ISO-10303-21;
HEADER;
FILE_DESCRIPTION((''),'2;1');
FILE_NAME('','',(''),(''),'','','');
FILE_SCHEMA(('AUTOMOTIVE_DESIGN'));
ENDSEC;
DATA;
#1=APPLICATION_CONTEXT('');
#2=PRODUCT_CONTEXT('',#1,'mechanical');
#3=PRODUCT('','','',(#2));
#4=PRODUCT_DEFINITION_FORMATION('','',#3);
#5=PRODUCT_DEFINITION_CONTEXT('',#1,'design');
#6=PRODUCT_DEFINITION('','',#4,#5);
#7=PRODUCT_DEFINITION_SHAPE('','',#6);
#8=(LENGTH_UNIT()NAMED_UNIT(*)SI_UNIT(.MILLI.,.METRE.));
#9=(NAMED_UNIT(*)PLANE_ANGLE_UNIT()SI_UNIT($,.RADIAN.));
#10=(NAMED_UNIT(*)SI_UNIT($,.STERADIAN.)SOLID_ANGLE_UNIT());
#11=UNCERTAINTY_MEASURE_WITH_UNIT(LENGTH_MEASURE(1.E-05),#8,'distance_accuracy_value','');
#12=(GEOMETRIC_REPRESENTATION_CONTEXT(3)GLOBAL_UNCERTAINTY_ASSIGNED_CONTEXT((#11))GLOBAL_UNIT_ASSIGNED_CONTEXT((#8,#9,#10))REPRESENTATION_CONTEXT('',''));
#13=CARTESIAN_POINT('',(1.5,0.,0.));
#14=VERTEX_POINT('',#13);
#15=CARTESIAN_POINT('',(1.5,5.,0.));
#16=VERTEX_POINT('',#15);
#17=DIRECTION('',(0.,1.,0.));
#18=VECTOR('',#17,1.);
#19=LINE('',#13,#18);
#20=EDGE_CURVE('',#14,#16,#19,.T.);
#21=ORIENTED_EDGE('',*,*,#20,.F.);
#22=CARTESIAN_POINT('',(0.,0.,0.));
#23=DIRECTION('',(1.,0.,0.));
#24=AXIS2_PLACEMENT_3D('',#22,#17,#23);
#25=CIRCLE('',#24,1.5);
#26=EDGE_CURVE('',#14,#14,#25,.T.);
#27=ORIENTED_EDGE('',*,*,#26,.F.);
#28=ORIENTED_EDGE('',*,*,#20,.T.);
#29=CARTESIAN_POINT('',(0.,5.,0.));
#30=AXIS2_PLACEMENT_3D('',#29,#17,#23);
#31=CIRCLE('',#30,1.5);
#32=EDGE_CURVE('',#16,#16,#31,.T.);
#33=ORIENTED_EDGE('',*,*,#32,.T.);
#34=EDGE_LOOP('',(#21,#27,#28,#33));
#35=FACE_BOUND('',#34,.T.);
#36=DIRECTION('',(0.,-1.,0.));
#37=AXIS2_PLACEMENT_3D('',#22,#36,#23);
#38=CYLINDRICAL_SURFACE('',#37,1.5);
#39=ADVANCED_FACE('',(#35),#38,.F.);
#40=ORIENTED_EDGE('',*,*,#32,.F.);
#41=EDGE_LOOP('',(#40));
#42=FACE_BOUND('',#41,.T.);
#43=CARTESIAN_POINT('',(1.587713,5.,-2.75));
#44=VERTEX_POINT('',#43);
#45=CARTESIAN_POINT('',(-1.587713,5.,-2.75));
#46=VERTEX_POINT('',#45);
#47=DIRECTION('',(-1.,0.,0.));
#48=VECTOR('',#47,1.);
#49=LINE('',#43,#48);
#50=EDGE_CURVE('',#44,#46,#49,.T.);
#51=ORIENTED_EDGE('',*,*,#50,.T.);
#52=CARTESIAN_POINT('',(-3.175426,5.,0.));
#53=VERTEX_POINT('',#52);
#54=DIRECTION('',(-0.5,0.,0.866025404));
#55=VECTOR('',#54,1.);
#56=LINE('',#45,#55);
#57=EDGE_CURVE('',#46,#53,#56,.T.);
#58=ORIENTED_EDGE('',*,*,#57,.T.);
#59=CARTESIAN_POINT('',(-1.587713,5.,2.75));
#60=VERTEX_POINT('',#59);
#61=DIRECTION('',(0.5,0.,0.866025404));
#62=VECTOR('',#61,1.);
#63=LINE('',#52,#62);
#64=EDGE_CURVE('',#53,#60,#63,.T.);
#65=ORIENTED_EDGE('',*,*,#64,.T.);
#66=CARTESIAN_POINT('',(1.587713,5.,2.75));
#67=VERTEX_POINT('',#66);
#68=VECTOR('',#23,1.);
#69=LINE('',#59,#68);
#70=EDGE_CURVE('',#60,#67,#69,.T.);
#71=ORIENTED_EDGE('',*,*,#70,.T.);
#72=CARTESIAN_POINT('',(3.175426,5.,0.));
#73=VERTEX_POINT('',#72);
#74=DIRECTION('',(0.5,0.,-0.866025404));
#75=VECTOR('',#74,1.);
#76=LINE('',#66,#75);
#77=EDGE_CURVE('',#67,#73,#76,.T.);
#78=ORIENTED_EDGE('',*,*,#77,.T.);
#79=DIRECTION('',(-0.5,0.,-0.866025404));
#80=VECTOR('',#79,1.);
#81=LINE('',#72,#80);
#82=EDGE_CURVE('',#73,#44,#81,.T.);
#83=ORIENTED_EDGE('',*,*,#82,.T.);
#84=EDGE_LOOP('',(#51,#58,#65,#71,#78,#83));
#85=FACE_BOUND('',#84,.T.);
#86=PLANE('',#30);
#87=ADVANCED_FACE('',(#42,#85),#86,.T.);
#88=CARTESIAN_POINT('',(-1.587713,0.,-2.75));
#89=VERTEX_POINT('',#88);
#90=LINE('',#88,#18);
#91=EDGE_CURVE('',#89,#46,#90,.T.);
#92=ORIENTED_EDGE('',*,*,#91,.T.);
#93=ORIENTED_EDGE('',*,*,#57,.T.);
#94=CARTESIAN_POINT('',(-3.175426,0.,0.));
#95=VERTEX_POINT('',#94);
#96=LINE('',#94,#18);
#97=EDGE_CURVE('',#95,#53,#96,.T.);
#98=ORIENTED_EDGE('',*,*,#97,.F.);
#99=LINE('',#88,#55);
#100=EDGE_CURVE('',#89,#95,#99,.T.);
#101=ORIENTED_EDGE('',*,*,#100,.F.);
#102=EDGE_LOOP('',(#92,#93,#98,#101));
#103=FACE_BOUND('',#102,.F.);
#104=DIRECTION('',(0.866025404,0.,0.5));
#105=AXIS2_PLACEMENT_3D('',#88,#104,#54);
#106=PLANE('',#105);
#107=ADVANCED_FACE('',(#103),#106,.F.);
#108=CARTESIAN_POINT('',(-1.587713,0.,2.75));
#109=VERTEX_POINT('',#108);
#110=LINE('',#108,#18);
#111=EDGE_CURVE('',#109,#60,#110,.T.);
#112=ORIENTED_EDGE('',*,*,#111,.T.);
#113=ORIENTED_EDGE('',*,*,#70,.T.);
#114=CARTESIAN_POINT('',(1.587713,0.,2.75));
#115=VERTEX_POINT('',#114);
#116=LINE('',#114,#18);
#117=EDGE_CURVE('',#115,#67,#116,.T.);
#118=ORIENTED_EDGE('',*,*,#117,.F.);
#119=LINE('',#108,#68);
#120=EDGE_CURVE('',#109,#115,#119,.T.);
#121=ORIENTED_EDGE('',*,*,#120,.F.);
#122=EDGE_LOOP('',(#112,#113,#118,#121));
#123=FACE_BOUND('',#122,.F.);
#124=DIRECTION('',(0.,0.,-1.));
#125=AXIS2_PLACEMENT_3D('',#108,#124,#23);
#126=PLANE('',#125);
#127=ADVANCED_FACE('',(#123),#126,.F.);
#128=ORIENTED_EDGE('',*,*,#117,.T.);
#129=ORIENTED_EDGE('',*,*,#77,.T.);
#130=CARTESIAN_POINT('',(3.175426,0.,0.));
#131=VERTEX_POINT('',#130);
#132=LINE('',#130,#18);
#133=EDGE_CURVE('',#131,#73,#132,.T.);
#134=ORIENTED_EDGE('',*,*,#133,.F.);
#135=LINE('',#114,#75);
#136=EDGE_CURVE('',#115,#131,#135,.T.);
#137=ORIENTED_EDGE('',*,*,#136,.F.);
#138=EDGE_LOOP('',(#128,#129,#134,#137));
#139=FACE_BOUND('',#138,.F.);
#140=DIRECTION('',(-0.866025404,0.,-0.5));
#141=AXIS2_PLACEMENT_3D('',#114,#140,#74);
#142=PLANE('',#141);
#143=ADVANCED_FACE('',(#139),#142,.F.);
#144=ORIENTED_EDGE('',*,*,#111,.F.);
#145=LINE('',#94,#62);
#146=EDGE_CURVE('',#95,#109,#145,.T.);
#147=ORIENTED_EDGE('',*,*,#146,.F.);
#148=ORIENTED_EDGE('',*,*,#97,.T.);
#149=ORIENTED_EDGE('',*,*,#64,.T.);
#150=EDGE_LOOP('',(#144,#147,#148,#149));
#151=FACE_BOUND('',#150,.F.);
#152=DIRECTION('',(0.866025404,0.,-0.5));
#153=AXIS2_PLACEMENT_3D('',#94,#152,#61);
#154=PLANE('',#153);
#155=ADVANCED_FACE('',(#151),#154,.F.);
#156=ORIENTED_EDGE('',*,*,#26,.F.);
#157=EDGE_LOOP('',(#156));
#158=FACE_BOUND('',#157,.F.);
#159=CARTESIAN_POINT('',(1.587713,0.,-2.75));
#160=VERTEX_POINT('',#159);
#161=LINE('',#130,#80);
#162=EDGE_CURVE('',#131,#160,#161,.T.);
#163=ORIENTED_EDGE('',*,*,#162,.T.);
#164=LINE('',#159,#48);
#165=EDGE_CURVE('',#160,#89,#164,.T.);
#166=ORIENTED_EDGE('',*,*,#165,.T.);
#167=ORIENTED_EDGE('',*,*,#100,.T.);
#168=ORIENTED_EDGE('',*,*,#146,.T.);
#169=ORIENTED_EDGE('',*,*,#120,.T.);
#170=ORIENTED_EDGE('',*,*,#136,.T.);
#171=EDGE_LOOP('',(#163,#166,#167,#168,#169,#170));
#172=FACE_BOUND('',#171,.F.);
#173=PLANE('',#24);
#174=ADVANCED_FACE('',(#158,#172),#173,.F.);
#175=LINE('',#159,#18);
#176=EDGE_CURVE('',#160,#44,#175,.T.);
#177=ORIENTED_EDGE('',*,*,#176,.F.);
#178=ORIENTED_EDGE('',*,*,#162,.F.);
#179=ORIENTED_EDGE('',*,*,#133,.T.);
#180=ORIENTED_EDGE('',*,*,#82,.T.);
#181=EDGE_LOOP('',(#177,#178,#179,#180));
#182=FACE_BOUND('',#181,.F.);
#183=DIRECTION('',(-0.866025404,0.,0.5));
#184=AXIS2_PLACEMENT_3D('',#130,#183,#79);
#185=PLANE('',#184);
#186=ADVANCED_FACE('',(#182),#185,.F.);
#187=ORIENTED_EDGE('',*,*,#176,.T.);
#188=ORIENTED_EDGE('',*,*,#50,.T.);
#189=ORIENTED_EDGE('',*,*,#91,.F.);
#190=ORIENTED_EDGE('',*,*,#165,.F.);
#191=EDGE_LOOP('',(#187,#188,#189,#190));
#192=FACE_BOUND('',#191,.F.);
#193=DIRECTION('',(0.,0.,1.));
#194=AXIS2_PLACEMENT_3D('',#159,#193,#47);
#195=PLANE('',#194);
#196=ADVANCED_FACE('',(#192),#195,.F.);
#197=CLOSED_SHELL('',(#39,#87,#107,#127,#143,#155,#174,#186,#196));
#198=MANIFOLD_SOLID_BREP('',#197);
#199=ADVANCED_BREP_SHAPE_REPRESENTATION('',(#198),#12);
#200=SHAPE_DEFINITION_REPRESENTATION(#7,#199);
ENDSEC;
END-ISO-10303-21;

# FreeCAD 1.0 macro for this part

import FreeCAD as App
import Part
import Sketcher

V = App.Vector
Q = App.Units.Quantity


def add_polygon(sketch, points):
    """Adds a closed chain of lines whose ends are joined by coincident constraints."""
    first, n = sketch.GeometryCount, len(points)
    for a, b in zip(points, points[1:] + points[:1]):
        sketch.addGeometry(Part.LineSegment(App.Vector(*a, 0), App.Vector(*b, 0)), False)
    for i in range(n):
        sketch.addConstraint(Sketcher.Constraint("Coincident", first + i, 2, first + (i + 1) % n, 1))

doc = App.newDocument("Part")
params = doc.addObject("Spreadsheet::Sheet", "Params")
for row, (alias, value) in enumerate([
    ("sketch1_diameter", "3 mm"),
    ("pad1_length", "5 mm"),
], start=1):
    params.set(f"A{row}", alias)
    params.set(f"B{row}", "=" + value)
    params.setAlias(f"B{row}", alias)

body = doc.addObject("PartDesign::Body", "Body")

# Sketch on XZ plane
sketch1 = doc.addObject("Sketcher::SketchObject", "Sketch")
body.addObject(sketch1)
sketch1.AttachmentSupport = (doc.XZ_Plane, [""])
sketch1.MapMode = "FlatFace"
add_polygon(sketch1, [(3.175426, 0), (1.587713, -2.75), (-1.587713, -2.75), (-3.175426, 0), (-1.587713, 2.75), (1.587713, 2.75)])  # lines 0-5
sketch1.addGeometry(Part.Circle(V(0, 0, 0), V(0, 0, 1), 1.5), False)  # 6
sketch1.addConstraint([
    Sketcher.Constraint("Horizontal", 1),
    Sketcher.Constraint("Horizontal", 4),
    Sketcher.Constraint("Coincident", 6, 3, -1, 1),
    Sketcher.Constraint("Symmetric", 0, 2, 3, 2, -1, 1),
    Sketcher.Constraint("Symmetric", 2, 2, 5, 2, -1, 1),
    Sketcher.Constraint("PointOnObject", 2, 2, -1),
    Sketcher.Constraint("Parallel", 2, 5),
    Sketcher.Constraint("Vertical", 1, 2, 3, 2),
    Sketcher.Constraint("Diameter", 6, Q("3 mm")),
    Sketcher.Constraint("Angle", 0, Q("-120 deg")),
    Sketcher.Constraint("DistanceY", 1, 2, 3, 2, Q("5.5 mm")),
    Sketcher.Constraint("DistanceX", 1, 2, 1, 1, Q("3.175426 mm")),
])
sketch1.setExpression("Constraints[14]", "Params.sketch1_diameter")
pad1 = doc.addObject("PartDesign::Pad", "Pad")
body.addObject(pad1)
pad1.Profile = sketch1
pad1.setExpression("Length", "Params.pad1_length")
pad1.Reversed = True

doc.recompute()
